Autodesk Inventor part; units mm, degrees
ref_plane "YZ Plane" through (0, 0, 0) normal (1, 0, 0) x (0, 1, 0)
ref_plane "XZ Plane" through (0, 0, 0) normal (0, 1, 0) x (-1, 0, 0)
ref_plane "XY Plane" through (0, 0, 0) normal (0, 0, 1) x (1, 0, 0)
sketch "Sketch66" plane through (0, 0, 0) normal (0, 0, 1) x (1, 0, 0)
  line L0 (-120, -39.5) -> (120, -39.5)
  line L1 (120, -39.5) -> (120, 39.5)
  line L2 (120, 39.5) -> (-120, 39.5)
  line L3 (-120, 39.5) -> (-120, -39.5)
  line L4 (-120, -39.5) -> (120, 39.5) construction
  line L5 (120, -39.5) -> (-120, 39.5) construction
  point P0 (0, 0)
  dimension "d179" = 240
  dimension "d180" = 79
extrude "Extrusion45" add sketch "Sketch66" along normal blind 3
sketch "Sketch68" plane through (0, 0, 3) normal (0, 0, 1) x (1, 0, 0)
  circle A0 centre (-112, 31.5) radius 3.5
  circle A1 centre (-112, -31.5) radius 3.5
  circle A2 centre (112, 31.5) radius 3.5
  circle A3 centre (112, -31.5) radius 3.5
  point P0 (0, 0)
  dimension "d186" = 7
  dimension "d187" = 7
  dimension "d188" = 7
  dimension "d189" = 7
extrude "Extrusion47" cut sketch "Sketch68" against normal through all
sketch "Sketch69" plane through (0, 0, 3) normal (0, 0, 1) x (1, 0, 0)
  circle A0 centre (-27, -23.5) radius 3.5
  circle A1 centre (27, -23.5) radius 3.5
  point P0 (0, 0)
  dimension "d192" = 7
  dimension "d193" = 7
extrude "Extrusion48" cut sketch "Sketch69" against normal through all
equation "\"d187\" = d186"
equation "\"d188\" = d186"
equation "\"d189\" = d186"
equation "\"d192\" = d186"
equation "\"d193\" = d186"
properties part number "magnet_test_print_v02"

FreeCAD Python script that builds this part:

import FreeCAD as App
import Part
import Sketcher

V = App.Vector

doc = App.newDocument("Part")
body = doc.addObject("PartDesign::Body", "Body")

sketch1 = body.newObject("Sketcher::SketchObject", "Sketch")
sketch1.AttachmentSupport = (doc.getObject("XY_Plane"), [""])
sketch1.MapMode = "FlatFace"
sketch1.addGeometry([
    Part.LineSegment(V(-120, 40, 0), V(-120, -40, 0)),
    Part.LineSegment(V(-120, -40, 0), V(120, -40, 0)),
    Part.LineSegment(V(120, -40, 0), V(120, 40, 0)),
    Part.LineSegment(V(120, 40, 0), V(-120, 40, 0)),
], False)
sketch1.addConstraint([
    Sketcher.Constraint("Coincident", 0, 2, 1, 1),
    Sketcher.Constraint("Coincident", 1, 2, 2, 1),
    Sketcher.Constraint("Coincident", 2, 2, 3, 1),
    Sketcher.Constraint("Coincident", 3, 2, 0, 1),
    Sketcher.Constraint("Vertical", 0),
    Sketcher.Constraint("Horizontal", 1),
    Sketcher.Constraint("Vertical", 2),
    Sketcher.Constraint("Horizontal", 3),
    Sketcher.Constraint("Symmetric", 0, 2, 2, 2, -1, 1),
    Sketcher.Constraint("DistanceX", 1, 1, 1, 2, 240.0),
    Sketcher.Constraint("DistanceY", 0, 2, 0, 1, 79.0),
])
pad1 = body.newObject("PartDesign::Pad", "Pad")
pad1.Profile = sketch1
pad1.Length = 3

sketch2 = body.newObject("Sketcher::SketchObject", "Sketch001")
sketch2.AttachmentSupport = (doc.getObject("XY_Plane"), [""])
sketch2.MapMode = "FlatFace"
sketch2.AttachmentOffset = App.Placement(V(0, 0, 3), App.Rotation())
sketch2.addGeometry([
    Part.Circle(V(-112, 31.5, 0), V(0, 0, 1), 3.5),
    Part.Circle(V(-112, -31.5, 0), V(0, 0, 1), 3.5),
    Part.Circle(V(112, 31.5, 0), V(0, 0, 1), 3.5),
    Part.Circle(V(112, -31.5, 0), V(0, 0, 1), 3.5),
], False)
sketch2.addConstraint([
    Sketcher.Constraint("Equal", 0, 1),
    Sketcher.Constraint("Equal", 1, 2),
    Sketcher.Constraint("Equal", 2, 3),
    Sketcher.Constraint("Symmetric", 1, 3, 2, 3, -1, 1),
    Sketcher.Constraint("Symmetric", 0, 3, 3, 3, -1, 1),
    Sketcher.Constraint("Symmetric", 0, 3, 2, 3, -2),
    Sketcher.Constraint("Diameter", 0, 7.0),
    Sketcher.Constraint("DistanceX", 0, 3, -1, 1, 112.0),
    Sketcher.Constraint("DistanceY", 1, 3, 0, 3, 63.0),
])
pocket1 = body.newObject("PartDesign::Pocket", "Pocket")
pocket1.Profile = sketch2
pocket1.Type = "ThroughAll"

sketch3 = body.newObject("Sketcher::SketchObject", "Sketch002")
sketch3.AttachmentSupport = (doc.getObject("XY_Plane"), [""])
sketch3.MapMode = "FlatFace"
sketch3.AttachmentOffset = App.Placement(V(0, 0, 3), App.Rotation())
sketch3.addGeometry([
    Part.Circle(V(-27, -23.5, 0), V(0, 0, 1), 3.5),
    Part.Circle(V(27, -23.5, 0), V(0, 0, 1), 3.5),
], False)
sketch3.addConstraint([
    Sketcher.Constraint("Equal", 0, 1),
    Sketcher.Constraint("Symmetric", 0, 3, 1, 3, -2),
    Sketcher.Constraint("Diameter", 0, 7.0),
    Sketcher.Constraint("DistanceX", 0, 3, -1, 1, 27.0),
    Sketcher.Constraint("DistanceY", 0, 3, -1, 1, 23.5),
])
pocket2 = body.newObject("PartDesign::Pocket", "Pocket001")
pocket2.Profile = sketch3
pocket2.Type = "ThroughAll"

doc.recompute()
